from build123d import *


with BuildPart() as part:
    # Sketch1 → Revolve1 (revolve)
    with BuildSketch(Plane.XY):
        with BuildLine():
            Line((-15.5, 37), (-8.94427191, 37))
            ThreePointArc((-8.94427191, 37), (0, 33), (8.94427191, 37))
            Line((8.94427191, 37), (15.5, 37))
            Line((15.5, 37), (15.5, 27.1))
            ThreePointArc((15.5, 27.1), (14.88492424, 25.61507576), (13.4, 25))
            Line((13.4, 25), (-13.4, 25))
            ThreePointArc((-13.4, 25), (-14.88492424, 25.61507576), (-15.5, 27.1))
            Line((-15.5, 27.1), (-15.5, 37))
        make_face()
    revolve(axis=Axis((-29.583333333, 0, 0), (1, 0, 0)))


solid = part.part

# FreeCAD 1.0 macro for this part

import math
import FreeCAD as App
import Part
import Sketcher
Q = App.Units.Quantity

doc = App.newDocument("Part")
body = doc.addObject("PartDesign::Body", "Body")

sketch1 = body.newObject("Sketcher::SketchObject", "Sketch")
sketch1.AttachmentSupport = (doc.getObject("XY_Plane"), [""])
sketch1.MapMode = "FlatFace"
sketch1.addGeometry(Part.LineSegment(App.Vector(-8.9, 37, 0), App.Vector(-15.5, 37, 0)), False)
sketch1.addGeometry(Part.LineSegment(App.Vector(-15.5, 37, 0), App.Vector(-15.5, 27.1, 0)), False)
sketch1.addGeometry(Part.ArcOfCircle(Part.Circle(App.Vector(-13.4, 27.1, 0), App.Vector(0, 0, 1), 2.1), math.radians(-180), math.radians(-90)), False)
sketch1.addGeometry(Part.LineSegment(App.Vector(-13.4, 25, 0), App.Vector(13.4, 25, 0)), False)
sketch1.addGeometry(Part.ArcOfCircle(Part.Circle(App.Vector(13.4, 27.1, 0), App.Vector(0, 0, 1), 2.1), math.radians(-90), math.radians(0)), False)
sketch1.addGeometry(Part.LineSegment(App.Vector(15.5, 27.1, 0), App.Vector(15.5, 37, 0)), False)
sketch1.addGeometry(Part.LineSegment(App.Vector(15.5, 37, 0), App.Vector(8.9, 37, 0)), False)
sketch1.addGeometry(Part.ArcOfCircle(Part.Circle(App.Vector(0, 45, 0), App.Vector(0, 0, 1), 12), math.radians(-138), math.radians(-42)), False)
sketch1.addConstraint(Sketcher.Constraint("Coincident", 0, 2, 1, 1))
sketch1.addConstraint(Sketcher.Constraint("Tangent", 1, 2, 2, 1))
sketch1.addConstraint(Sketcher.Constraint("Tangent", 2, 2, 3, 1))
sketch1.addConstraint(Sketcher.Constraint("Tangent", 3, 2, 4, 1))
sketch1.addConstraint(Sketcher.Constraint("Tangent", 4, 2, 5, 1))
sketch1.addConstraint(Sketcher.Constraint("Coincident", 5, 2, 6, 1))
sketch1.addConstraint(Sketcher.Constraint("Coincident", 6, 2, 7, 2))
sketch1.addConstraint(Sketcher.Constraint("Coincident", 7, 1, 0, 1))
sketch1.addConstraint(Sketcher.Constraint("Horizontal", 0))
sketch1.addConstraint(Sketcher.Constraint("Vertical", 1))
sketch1.addConstraint(Sketcher.Constraint("Horizontal", 3))
sketch1.addConstraint(Sketcher.Constraint("Vertical", 5))
sketch1.addConstraint(Sketcher.Constraint("Horizontal", 6))
sketch1.addConstraint(Sketcher.Constraint("Equal", 2, 4))
sketch1.addConstraint(Sketcher.Constraint("Symmetric", 0, 2, 5, 2, -2))
sketch1.addConstraint(Sketcher.Constraint("PointOnObject", 7, 3, -2))
sketch1.addConstraint(Sketcher.Constraint("Radius", 7, Q("12 mm")))
sketch1.addConstraint(Sketcher.Constraint("Radius", 2, Q("2.1 mm")))
sketch1.addConstraint(Sketcher.Constraint("DistanceX", 3, 1, 3, 2, Q("26.8 mm")))
sketch1.addConstraint(Sketcher.Constraint("DistanceY", 1, 2, 1, 1, Q("9.9 mm")))
sketch1.addConstraint(Sketcher.Constraint("DistanceY", -1, 1, 7, 3, Q("45 mm")))
sketch1.addConstraint(Sketcher.Constraint("DistanceY", -1, 1, 0, 2, Q("37 mm")))
revolution = body.newObject("PartDesign::Revolution", "Revolution")
revolution.Profile = sketch1
revolution.ReferenceAxis = (sketch1, ["H_Axis"])
revolution.Angle = 360

doc.recompute()
